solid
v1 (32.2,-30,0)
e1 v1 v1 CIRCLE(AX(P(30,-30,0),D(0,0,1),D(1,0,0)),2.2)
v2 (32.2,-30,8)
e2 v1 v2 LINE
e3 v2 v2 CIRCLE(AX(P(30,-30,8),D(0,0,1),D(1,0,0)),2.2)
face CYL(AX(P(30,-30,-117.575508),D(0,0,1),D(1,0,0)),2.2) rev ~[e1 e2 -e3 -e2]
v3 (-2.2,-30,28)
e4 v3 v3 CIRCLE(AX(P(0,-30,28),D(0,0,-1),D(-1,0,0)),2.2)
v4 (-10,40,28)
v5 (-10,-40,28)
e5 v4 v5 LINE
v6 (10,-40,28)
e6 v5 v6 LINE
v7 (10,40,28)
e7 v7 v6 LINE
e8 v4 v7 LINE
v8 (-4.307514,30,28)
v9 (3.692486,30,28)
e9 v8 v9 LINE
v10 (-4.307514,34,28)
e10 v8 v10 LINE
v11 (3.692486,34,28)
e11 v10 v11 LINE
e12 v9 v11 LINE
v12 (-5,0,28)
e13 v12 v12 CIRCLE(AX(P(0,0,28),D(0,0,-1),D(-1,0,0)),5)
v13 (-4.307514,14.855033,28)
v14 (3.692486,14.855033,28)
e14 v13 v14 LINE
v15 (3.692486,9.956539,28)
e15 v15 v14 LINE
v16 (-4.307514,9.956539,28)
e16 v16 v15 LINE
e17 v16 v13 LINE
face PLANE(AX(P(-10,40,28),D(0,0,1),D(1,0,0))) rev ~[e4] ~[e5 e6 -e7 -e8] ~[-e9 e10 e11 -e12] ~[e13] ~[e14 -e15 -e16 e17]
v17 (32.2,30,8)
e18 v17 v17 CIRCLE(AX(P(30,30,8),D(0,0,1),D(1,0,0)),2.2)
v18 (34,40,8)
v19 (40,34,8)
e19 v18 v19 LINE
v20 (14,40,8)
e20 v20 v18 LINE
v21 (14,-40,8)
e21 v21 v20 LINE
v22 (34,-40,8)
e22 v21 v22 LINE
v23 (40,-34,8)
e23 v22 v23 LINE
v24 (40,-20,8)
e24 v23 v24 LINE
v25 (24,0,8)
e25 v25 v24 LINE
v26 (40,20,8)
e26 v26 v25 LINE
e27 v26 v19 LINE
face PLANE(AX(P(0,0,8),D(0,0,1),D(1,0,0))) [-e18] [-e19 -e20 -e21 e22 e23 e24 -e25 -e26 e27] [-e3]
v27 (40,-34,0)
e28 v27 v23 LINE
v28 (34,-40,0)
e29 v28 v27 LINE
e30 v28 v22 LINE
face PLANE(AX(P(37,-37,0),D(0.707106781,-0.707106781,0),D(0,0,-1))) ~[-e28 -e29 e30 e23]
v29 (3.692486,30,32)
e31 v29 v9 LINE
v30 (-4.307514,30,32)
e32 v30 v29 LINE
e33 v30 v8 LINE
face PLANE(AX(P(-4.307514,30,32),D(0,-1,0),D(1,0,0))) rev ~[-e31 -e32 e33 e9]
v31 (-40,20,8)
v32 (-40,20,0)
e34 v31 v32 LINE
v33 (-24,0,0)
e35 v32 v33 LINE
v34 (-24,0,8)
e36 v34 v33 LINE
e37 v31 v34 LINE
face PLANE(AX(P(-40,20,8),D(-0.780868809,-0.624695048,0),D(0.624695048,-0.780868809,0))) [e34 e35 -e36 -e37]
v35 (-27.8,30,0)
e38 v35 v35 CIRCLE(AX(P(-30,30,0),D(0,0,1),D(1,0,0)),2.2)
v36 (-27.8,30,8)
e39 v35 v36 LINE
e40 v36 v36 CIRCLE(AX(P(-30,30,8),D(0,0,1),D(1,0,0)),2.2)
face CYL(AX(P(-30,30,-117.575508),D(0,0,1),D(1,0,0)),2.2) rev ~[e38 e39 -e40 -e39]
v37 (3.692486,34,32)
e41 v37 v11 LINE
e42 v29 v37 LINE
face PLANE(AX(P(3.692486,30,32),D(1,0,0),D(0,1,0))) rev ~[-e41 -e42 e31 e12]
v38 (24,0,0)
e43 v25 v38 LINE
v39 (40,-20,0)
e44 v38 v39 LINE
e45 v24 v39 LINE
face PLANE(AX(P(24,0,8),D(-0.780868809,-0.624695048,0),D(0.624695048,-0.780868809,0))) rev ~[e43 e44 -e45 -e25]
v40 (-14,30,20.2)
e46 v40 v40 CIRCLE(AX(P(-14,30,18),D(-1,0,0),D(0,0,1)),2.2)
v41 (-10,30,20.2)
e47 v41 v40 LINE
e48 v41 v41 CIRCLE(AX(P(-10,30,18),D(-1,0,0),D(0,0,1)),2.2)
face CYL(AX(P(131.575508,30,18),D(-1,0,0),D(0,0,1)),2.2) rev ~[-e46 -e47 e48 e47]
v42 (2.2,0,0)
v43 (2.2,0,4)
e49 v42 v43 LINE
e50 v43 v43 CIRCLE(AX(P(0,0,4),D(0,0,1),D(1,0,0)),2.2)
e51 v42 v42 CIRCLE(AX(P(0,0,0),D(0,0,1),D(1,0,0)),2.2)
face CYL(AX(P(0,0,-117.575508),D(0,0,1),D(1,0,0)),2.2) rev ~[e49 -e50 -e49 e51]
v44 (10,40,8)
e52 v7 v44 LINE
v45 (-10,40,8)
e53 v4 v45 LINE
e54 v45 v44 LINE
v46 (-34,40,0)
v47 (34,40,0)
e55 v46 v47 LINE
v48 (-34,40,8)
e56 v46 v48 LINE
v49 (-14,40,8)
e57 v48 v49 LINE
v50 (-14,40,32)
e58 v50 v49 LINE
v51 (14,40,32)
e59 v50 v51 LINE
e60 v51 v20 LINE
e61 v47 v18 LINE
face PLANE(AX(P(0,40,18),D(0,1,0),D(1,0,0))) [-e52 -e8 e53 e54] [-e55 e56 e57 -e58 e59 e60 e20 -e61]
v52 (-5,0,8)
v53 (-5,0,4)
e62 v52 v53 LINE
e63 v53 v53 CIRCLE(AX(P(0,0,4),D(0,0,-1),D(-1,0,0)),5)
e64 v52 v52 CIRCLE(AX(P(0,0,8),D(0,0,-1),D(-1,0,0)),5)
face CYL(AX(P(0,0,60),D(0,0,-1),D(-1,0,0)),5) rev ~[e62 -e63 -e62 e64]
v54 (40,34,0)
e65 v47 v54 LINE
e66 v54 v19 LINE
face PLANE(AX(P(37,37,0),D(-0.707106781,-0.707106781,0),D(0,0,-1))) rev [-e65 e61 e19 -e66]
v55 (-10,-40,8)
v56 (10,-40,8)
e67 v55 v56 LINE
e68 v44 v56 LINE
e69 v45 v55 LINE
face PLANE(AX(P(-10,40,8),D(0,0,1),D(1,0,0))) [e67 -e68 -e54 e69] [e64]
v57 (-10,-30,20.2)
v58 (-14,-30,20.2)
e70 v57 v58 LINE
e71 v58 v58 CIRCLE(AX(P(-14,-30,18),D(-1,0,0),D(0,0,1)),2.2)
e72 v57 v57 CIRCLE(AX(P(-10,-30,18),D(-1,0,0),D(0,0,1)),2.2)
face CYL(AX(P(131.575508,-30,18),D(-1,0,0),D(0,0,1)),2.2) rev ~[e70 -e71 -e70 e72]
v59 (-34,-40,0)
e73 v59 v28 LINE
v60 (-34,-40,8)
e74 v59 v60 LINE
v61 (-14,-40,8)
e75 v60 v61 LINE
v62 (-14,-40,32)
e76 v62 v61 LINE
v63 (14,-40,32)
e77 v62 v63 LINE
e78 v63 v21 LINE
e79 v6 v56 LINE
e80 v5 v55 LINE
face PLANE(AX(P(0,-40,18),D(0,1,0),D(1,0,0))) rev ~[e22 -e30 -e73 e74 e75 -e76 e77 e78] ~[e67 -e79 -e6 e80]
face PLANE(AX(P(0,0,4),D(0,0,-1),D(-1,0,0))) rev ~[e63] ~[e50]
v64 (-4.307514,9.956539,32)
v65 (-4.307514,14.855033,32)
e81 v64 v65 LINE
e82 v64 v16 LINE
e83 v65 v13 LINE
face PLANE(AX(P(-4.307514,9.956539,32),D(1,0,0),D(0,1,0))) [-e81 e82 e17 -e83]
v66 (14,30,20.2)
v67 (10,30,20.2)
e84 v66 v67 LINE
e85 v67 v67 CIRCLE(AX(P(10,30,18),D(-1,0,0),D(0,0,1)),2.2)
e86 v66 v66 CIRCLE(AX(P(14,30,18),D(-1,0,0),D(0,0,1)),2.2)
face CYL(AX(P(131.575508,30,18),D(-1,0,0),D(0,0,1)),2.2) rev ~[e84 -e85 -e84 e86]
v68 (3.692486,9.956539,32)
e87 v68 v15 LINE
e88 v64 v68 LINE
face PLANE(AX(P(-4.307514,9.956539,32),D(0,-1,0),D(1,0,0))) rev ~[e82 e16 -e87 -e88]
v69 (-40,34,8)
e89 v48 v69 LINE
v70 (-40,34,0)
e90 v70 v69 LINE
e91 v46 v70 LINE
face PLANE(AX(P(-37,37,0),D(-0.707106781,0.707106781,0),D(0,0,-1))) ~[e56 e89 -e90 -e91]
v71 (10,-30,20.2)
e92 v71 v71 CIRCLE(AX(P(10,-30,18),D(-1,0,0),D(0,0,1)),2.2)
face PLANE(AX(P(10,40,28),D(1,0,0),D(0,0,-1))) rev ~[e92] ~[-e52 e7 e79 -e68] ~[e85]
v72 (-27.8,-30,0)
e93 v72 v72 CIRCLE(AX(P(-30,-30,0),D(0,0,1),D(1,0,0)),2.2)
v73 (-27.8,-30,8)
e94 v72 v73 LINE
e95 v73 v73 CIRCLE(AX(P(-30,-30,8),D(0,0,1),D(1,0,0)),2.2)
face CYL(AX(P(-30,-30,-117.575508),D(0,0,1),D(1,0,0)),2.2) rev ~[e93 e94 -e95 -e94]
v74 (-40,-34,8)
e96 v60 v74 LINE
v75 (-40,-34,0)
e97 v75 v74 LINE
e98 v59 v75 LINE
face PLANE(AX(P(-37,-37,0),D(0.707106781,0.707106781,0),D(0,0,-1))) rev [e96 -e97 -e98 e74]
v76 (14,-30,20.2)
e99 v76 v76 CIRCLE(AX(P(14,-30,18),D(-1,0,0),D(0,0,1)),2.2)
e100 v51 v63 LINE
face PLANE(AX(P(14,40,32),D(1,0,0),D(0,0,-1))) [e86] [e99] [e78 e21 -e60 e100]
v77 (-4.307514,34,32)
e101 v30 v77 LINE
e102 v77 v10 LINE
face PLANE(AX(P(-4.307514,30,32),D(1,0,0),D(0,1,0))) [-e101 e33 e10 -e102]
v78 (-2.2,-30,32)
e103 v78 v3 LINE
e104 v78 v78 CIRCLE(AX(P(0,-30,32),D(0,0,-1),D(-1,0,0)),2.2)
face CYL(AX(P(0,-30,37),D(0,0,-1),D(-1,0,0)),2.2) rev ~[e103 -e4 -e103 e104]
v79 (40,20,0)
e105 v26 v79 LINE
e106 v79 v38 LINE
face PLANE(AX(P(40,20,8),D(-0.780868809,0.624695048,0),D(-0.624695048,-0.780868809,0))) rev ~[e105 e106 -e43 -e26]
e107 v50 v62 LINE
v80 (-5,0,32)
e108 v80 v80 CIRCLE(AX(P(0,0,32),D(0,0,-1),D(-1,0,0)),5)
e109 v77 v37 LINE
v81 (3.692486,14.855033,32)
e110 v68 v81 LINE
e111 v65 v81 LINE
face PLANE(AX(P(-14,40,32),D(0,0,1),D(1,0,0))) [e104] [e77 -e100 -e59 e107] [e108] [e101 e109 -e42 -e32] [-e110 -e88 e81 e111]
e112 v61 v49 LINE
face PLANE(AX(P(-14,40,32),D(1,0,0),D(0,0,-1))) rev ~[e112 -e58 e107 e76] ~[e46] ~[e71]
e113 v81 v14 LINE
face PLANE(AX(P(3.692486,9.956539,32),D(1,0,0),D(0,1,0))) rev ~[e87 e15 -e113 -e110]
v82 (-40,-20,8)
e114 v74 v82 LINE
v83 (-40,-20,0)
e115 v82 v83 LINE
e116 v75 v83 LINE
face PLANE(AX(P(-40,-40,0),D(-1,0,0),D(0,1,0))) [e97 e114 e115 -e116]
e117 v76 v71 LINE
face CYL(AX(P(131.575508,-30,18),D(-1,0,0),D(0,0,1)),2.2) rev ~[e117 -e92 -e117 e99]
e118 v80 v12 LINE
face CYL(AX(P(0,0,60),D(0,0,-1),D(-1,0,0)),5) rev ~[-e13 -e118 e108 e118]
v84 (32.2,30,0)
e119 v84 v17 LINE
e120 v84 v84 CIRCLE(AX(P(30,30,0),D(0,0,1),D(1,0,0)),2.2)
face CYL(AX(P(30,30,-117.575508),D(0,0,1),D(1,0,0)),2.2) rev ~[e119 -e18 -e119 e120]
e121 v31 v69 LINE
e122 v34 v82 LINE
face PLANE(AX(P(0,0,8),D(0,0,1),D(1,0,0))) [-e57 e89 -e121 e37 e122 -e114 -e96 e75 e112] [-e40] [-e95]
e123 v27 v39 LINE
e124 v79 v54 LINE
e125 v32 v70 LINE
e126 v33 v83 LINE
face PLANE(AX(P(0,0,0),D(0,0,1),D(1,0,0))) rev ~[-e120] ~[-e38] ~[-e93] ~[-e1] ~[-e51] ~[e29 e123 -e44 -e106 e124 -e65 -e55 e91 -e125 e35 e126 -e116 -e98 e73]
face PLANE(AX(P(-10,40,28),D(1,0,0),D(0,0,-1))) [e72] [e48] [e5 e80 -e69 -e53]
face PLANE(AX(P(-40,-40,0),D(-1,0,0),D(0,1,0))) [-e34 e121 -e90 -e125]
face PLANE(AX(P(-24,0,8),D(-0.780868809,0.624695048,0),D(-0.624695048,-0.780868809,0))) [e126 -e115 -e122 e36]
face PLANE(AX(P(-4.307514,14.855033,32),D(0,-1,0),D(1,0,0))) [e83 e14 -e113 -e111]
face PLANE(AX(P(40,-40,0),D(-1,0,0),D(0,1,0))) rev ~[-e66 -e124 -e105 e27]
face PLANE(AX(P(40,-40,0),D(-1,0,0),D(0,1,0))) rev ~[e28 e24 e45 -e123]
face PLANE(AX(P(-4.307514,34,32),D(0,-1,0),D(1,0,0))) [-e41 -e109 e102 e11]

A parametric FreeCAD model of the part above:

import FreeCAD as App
import Part
import Sketcher
from FreeCAD import Vector


def edges_at(feature, points):
    """Names of the edges that pass closest to the given points."""
    edges = feature.Shape.Edges
    near = lambda p: min(range(len(edges)), key=lambda i: edges[i].distToShape(Part.Vertex(*p))[0])
    return sorted({f"Edge{near(p) + 1}" for p in points})

doc = App.newDocument("Part")
body = doc.addObject("PartDesign::Body", "Body")

# Sketch on XY plane
sketch1 = body.newObject("Sketcher::SketchObject", "Sketch")
sketch1.AttachmentSupport = (doc.getObject("XY_Plane"), [""])
sketch1.MapMode = "FlatFace"
sketch1.addGeometry([
    Part.LineSegment(Vector(-40, 40, 0), Vector(-40, -40, 0)),
    Part.LineSegment(Vector(-40, -40, 0), Vector(40, -40, 0)),
    Part.LineSegment(Vector(40, -40, 0), Vector(40, 40, 0)),
    Part.LineSegment(Vector(40, 40, 0), Vector(-40, 40, 0)),
], False)
sketch1.addConstraint([
    Sketcher.Constraint("Coincident", 0, 2, 1, 1),
    Sketcher.Constraint("Coincident", 1, 2, 2, 1),
    Sketcher.Constraint("Coincident", 2, 2, 3, 1),
    Sketcher.Constraint("Coincident", 3, 2, 0, 1),
    Sketcher.Constraint("Vertical", 0),
    Sketcher.Constraint("Horizontal", 1),
    Sketcher.Constraint("Vertical", 2),
    Sketcher.Constraint("Horizontal", 3),
    Sketcher.Constraint("Symmetric", 0, 2, 2, 2, -1, 1),
    Sketcher.Constraint("Equal", 3, 0),
    Sketcher.Constraint("DistanceX", 1, 1, 1, 2, 80.0),
])
pad1 = body.newObject("PartDesign::Pad", "Pad")
pad1.Profile = sketch1
pad1.Length = 8

# Sketch on XZ plane
sketch2 = body.newObject("Sketcher::SketchObject", "Sketch001")
sketch2.AttachmentSupport = (doc.getObject("XZ_Plane"), [""])
sketch2.MapMode = "FlatFace"
sketch2.AttachmentOffset = App.Placement(Vector(0, 0, -40), App.Rotation())
sketch2.addGeometry([
    Part.LineSegment(Vector(-14, 4, 0), Vector(-14, 32, 0)),  # 0
    Part.LineSegment(Vector(-14, 32, 0), Vector(14, 32, 0)),  # 1
    Part.LineSegment(Vector(14, 32, 0), Vector(14, 4, 0)),  # 2
    Part.LineSegment(Vector(14, 4, 0), Vector(-14, 4, 0)),  # 3
    Part.LineSegment(Vector(10, 28, 0), Vector(-10, 28, 0)),  # 4
    Part.LineSegment(Vector(-10, 28, 0), Vector(-10, 8, 0)),  # 5
    Part.LineSegment(Vector(-10, 8, 0), Vector(10, 8, 0)),  # 6
    Part.LineSegment(Vector(10, 8, 0), Vector(10, 28, 0)),  # 7
], False)
sketch2.addConstraint([
    Sketcher.Constraint("Coincident", 0, 2, 1, 1),
    Sketcher.Constraint("Coincident", 1, 2, 2, 1),
    Sketcher.Constraint("Coincident", 2, 2, 3, 1),
    Sketcher.Constraint("Coincident", 3, 2, 0, 1),
    Sketcher.Constraint("Coincident", 4, 2, 5, 1),
    Sketcher.Constraint("Coincident", 5, 2, 6, 1),
    Sketcher.Constraint("Coincident", 6, 2, 7, 1),
    Sketcher.Constraint("Coincident", 7, 2, 4, 1),
    Sketcher.Constraint("Vertical", 0),
    Sketcher.Constraint("Horizontal", 1),
    Sketcher.Constraint("Vertical", 2),
    Sketcher.Constraint("Horizontal", 3),
    Sketcher.Constraint("Horizontal", 4),
    Sketcher.Constraint("Vertical", 5),
    Sketcher.Constraint("Horizontal", 6),
    Sketcher.Constraint("Vertical", 7),
    Sketcher.Constraint("Equal", 3, 0),
    Sketcher.Constraint("Equal", 6, 5),
    Sketcher.Constraint("DistanceX", 1, 1, 1, 2, 28.0),
    Sketcher.Constraint("DistanceX", 4, 2, 4, 1, 20.0),
    Sketcher.Constraint("DistanceX", 0, 2, -1, 1, 14.0),
    Sketcher.Constraint("DistanceY", -1, 1, 0, 2, 32.0),
    Sketcher.Constraint("DistanceX", 4, 2, -1, 1, 10.0),
    Sketcher.Constraint("DistanceY", -1, 1, 4, 2, 28.0),
])
pad2 = body.newObject("PartDesign::Pad", "Pad001")
pad2.Profile = sketch2
pad2.Length = 80

# Sketch on XY plane
sketch3 = body.newObject("Sketcher::SketchObject", "Sketch002")
sketch3.AttachmentSupport = (doc.getObject("XY_Plane"), [""])
sketch3.MapMode = "FlatFace"
sketch3.addGeometry([
    Part.Circle(Vector(30, 30, 0), Vector(0, 0, 1), 2.2),  # 0
    Part.Circle(Vector(-30, 30, 0), Vector(0, 0, 1), 2.2),  # 1
    Part.Circle(Vector(-30, -30, 0), Vector(0, 0, 1), 2.2),  # 2
    Part.Circle(Vector(30, -30, 0), Vector(0, 0, 1), 2.2),  # 3
    Part.Circle(Vector(0, 0, 0), Vector(0, 0, 1), 2.2),  # 4
], False)
sketch3.addConstraint([
    Sketcher.Constraint("Coincident", 4, 3, -1, 1),
    Sketcher.Constraint("Equal", 0, 1),
    Sketcher.Constraint("Equal", 1, 2),
    Sketcher.Constraint("Equal", 2, 3),
    Sketcher.Constraint("Equal", 3, 4),
    Sketcher.Constraint("Symmetric", 0, 3, 2, 3, -1, 1),
    Sketcher.Constraint("Symmetric", 1, 3, 3, 3, -1, 1),
    Sketcher.Constraint("Symmetric", 0, 3, 1, 3, -2),
    Sketcher.Constraint("Diameter", 0, 4.4),
    Sketcher.Constraint("DistanceX", -1, 1, 0, 3, 30.0),
    Sketcher.Constraint("DistanceY", -1, 1, 0, 3, 30.0),
])
doc.recompute()
hole = body.newObject("PartDesign::Hole", "Hole")
hole.Profile = sketch3
hole.ThreadType = "None"
hole.Diameter = 4.4
hole.DepthType = "ThroughAll"
hole.Reversed = True

# Sketch on YZ plane
sketch4 = body.newObject("Sketcher::SketchObject", "Sketch003")
sketch4.AttachmentSupport = (doc.getObject("YZ_Plane"), [""])
sketch4.MapMode = "FlatFace"
sketch4.AttachmentOffset = App.Placement(Vector(0, 0, 14), App.Rotation())
sketch4.addGeometry([
    Part.Circle(Vector(30, 18, 0), Vector(0, 0, 1), 2.2),
    Part.Circle(Vector(-30, 18, 0), Vector(0, 0, 1), 2.2),
], False)
sketch4.addConstraint([
    Sketcher.Constraint("Equal", 0, 1),
    Sketcher.Constraint("Symmetric", 0, 3, 1, 3, -2),
    Sketcher.Constraint("Diameter", 0, 4.4),
    Sketcher.Constraint("DistanceX", -1, 1, 0, 3, 30.0),
    Sketcher.Constraint("DistanceY", -1, 1, 0, 3, 18.0),
])
doc.recompute()
hole2 = body.newObject("PartDesign::Hole", "Hole001")
hole2.Profile = sketch4
hole2.ThreadType = "None"
hole2.Diameter = 4.4
hole2.DepthType = "ThroughAll"

# Sketch on XY plane
sketch5 = body.newObject("Sketcher::SketchObject", "Sketch004")
sketch5.AttachmentSupport = (doc.getObject("XY_Plane"), [""])
sketch5.MapMode = "FlatFace"
sketch5.AttachmentOffset = App.Placement(Vector(0, 0, 32), App.Rotation())
sketch5.addGeometry(Part.Circle(Vector(0, 0, 0), Vector(0, 0, 1), 5), False)
sketch5.addConstraint([
    Sketcher.Constraint("Coincident", 0, 3, -1, 1),
    Sketcher.Constraint("Diameter", 0, 10.0),
])
doc.recompute()
hole3 = body.newObject("PartDesign::Hole", "Hole002")
hole3.Profile = sketch5
hole3.ThreadType = "None"
hole3.Diameter = 10
hole3.DepthType = "Dimension"
hole3.Depth = 28
hole3.DrillPoint = "Flat"

# Sketch on XY plane
sketch6 = body.newObject("Sketcher::SketchObject", "Sketch005")
sketch6.AttachmentSupport = (doc.getObject("XY_Plane"), [""])
sketch6.MapMode = "FlatFace"
sketch6.AttachmentOffset = App.Placement(Vector(0, 0, 32), App.Rotation())
sketch6.addGeometry(Part.Circle(Vector(0, -30, 0), Vector(0, 0, 1), 2.2), False)
sketch6.addConstraint([
    Sketcher.Constraint("PointOnObject", 0, 3, -2),
    Sketcher.Constraint("Diameter", 0, 4.4),
    Sketcher.Constraint("DistanceY", 0, 3, -1, 1, 30.0),
])
doc.recompute()
hole4 = body.newObject("PartDesign::Hole", "Hole003")
hole4.Profile = sketch6
hole4.ThreadType = "None"
hole4.Diameter = 4.4
hole4.DepthType = "Dimension"
hole4.Depth = 5
hole4.DrillPoint = "Flat"

# Sketch on XY plane
sketch7 = body.newObject("Sketcher::SketchObject", "Sketch006")
sketch7.AttachmentSupport = (doc.getObject("XY_Plane"), [""])
sketch7.MapMode = "FlatFace"
sketch7.AttachmentOffset = App.Placement(Vector(0, 0, 32), App.Rotation())
sketch7.addGeometry([
    Part.LineSegment(Vector(-4.3, 34, 0), Vector(-4.3, 30, 0)),  # 0
    Part.LineSegment(Vector(-4.3, 30, 0), Vector(3.7, 30, 0)),  # 1
    Part.LineSegment(Vector(3.7, 30, 0), Vector(3.7, 34, 0)),  # 2
    Part.LineSegment(Vector(3.7, 34, 0), Vector(-4.3, 34, 0)),  # 3
    Part.LineSegment(Vector(-4.3, 14.9, 0), Vector(-4.3, 10, 0)),  # 4
    Part.LineSegment(Vector(-4.3, 10, 0), Vector(3.7, 10, 0)),  # 5
    Part.LineSegment(Vector(3.7, 10, 0), Vector(3.7, 14.9, 0)),  # 6
    Part.LineSegment(Vector(3.7, 14.9, 0), Vector(-4.3, 14.9, 0)),  # 7
], False)
sketch7.addConstraint([
    Sketcher.Constraint("Coincident", 0, 2, 1, 1),
    Sketcher.Constraint("Coincident", 1, 2, 2, 1),
    Sketcher.Constraint("Coincident", 2, 2, 3, 1),
    Sketcher.Constraint("Coincident", 3, 2, 0, 1),
    Sketcher.Constraint("Coincident", 4, 2, 5, 1),
    Sketcher.Constraint("Coincident", 5, 2, 6, 1),
    Sketcher.Constraint("Coincident", 6, 2, 7, 1),
    Sketcher.Constraint("Coincident", 7, 2, 4, 1),
    Sketcher.Constraint("Vertical", 0),
    Sketcher.Constraint("Horizontal", 1),
    Sketcher.Constraint("Vertical", 2),
    Sketcher.Constraint("Horizontal", 3),
    Sketcher.Constraint("Vertical", 4),
    Sketcher.Constraint("Horizontal", 5),
    Sketcher.Constraint("Vertical", 6),
    Sketcher.Constraint("Horizontal", 7),
    Sketcher.Constraint("Vertical", 3, 2, 4, 2),
    Sketcher.Constraint("Vertical", 2, 2, 5, 2),
    Sketcher.Constraint("DistanceX", 1, 1, 1, 2, 8.0),
    Sketcher.Constraint("DistanceY", 0, 2, 0, 1, 4.0),
    Sketcher.Constraint("DistanceY", -1, 1, 0, 2, 30.0),
    Sketcher.Constraint("DistanceY", 4, 2, 4, 1, 4.898494),
    Sketcher.Constraint("DistanceY", -1, 1, 4, 2, 9.956539),
    Sketcher.Constraint("DistanceX", 0, 2, -1, 1, 4.307514),
])
pocket1 = body.newObject("PartDesign::Pocket", "Pocket")
pocket1.Profile = sketch7
pocket1.Length = 4

# Sketch on XY plane
sketch8 = body.newObject("Sketcher::SketchObject", "Sketch007")
sketch8.AttachmentSupport = (doc.getObject("XY_Plane"), [""])
sketch8.MapMode = "FlatFace"
sketch8.AttachmentOffset = App.Placement(Vector(0, 0, 8), App.Rotation())
sketch8.addGeometry([
    Part.LineSegment(Vector(-24, 0, 0), Vector(-40, 20, 0)),  # 0
    Part.LineSegment(Vector(-40, 20, 0), Vector(-40, -20, 0)),  # 1
    Part.LineSegment(Vector(-40, -20, 0), Vector(-24, 0, 0)),  # 2
    Part.LineSegment(Vector(40, 20, 0), Vector(24, 0, 0)),  # 3
    Part.LineSegment(Vector(24, 0, 0), Vector(40, -20, 0)),  # 4
    Part.LineSegment(Vector(40, -20, 0), Vector(40, 20, 0)),  # 5
], False)
sketch8.addConstraint([
    Sketcher.Constraint("Coincident", 0, 2, 1, 1),
    Sketcher.Constraint("Coincident", 1, 2, 2, 1),
    Sketcher.Constraint("Coincident", 2, 2, 0, 1),
    Sketcher.Constraint("Coincident", 3, 2, 4, 1),
    Sketcher.Constraint("Coincident", 4, 2, 5, 1),
    Sketcher.Constraint("Coincident", 5, 2, 3, 1),
    Sketcher.Constraint("Vertical", 1),
    Sketcher.Constraint("Vertical", 5),
    Sketcher.Constraint("Symmetric", 2, 2, 3, 2, -1, 1),
    Sketcher.Constraint("Symmetric", 0, 2, 4, 2, -1, 1),
    Sketcher.Constraint("PointOnObject", 2, 2, -1),
    Sketcher.Constraint("Parallel", 2, 3),
    Sketcher.Constraint("Horizontal", 1, 2, 4, 2),
    Sketcher.Constraint("DistanceY", 1, 2, 1, 1, 40.0),
    Sketcher.Constraint("DistanceX", 0, 2, -1, 1, 40.0),
    Sketcher.Constraint("DistanceX", 2, 2, -1, 1, 24.0),
])
pocket2 = body.newObject("PartDesign::Pocket", "Pocket001")
pocket2.Profile = sketch8
pocket2.Type = "ThroughAll"
doc.recompute()

chamfer = body.newObject("PartDesign::Chamfer", "Chamfer")
chamfer.Base = (pocket2, edges_at(pocket2, [
    (40, -40, 4),
    (-40, -40, 4),
    (-40, 40, 4),
    (40, 40, 4),
]))
chamfer.Size = 6

doc.recompute()
